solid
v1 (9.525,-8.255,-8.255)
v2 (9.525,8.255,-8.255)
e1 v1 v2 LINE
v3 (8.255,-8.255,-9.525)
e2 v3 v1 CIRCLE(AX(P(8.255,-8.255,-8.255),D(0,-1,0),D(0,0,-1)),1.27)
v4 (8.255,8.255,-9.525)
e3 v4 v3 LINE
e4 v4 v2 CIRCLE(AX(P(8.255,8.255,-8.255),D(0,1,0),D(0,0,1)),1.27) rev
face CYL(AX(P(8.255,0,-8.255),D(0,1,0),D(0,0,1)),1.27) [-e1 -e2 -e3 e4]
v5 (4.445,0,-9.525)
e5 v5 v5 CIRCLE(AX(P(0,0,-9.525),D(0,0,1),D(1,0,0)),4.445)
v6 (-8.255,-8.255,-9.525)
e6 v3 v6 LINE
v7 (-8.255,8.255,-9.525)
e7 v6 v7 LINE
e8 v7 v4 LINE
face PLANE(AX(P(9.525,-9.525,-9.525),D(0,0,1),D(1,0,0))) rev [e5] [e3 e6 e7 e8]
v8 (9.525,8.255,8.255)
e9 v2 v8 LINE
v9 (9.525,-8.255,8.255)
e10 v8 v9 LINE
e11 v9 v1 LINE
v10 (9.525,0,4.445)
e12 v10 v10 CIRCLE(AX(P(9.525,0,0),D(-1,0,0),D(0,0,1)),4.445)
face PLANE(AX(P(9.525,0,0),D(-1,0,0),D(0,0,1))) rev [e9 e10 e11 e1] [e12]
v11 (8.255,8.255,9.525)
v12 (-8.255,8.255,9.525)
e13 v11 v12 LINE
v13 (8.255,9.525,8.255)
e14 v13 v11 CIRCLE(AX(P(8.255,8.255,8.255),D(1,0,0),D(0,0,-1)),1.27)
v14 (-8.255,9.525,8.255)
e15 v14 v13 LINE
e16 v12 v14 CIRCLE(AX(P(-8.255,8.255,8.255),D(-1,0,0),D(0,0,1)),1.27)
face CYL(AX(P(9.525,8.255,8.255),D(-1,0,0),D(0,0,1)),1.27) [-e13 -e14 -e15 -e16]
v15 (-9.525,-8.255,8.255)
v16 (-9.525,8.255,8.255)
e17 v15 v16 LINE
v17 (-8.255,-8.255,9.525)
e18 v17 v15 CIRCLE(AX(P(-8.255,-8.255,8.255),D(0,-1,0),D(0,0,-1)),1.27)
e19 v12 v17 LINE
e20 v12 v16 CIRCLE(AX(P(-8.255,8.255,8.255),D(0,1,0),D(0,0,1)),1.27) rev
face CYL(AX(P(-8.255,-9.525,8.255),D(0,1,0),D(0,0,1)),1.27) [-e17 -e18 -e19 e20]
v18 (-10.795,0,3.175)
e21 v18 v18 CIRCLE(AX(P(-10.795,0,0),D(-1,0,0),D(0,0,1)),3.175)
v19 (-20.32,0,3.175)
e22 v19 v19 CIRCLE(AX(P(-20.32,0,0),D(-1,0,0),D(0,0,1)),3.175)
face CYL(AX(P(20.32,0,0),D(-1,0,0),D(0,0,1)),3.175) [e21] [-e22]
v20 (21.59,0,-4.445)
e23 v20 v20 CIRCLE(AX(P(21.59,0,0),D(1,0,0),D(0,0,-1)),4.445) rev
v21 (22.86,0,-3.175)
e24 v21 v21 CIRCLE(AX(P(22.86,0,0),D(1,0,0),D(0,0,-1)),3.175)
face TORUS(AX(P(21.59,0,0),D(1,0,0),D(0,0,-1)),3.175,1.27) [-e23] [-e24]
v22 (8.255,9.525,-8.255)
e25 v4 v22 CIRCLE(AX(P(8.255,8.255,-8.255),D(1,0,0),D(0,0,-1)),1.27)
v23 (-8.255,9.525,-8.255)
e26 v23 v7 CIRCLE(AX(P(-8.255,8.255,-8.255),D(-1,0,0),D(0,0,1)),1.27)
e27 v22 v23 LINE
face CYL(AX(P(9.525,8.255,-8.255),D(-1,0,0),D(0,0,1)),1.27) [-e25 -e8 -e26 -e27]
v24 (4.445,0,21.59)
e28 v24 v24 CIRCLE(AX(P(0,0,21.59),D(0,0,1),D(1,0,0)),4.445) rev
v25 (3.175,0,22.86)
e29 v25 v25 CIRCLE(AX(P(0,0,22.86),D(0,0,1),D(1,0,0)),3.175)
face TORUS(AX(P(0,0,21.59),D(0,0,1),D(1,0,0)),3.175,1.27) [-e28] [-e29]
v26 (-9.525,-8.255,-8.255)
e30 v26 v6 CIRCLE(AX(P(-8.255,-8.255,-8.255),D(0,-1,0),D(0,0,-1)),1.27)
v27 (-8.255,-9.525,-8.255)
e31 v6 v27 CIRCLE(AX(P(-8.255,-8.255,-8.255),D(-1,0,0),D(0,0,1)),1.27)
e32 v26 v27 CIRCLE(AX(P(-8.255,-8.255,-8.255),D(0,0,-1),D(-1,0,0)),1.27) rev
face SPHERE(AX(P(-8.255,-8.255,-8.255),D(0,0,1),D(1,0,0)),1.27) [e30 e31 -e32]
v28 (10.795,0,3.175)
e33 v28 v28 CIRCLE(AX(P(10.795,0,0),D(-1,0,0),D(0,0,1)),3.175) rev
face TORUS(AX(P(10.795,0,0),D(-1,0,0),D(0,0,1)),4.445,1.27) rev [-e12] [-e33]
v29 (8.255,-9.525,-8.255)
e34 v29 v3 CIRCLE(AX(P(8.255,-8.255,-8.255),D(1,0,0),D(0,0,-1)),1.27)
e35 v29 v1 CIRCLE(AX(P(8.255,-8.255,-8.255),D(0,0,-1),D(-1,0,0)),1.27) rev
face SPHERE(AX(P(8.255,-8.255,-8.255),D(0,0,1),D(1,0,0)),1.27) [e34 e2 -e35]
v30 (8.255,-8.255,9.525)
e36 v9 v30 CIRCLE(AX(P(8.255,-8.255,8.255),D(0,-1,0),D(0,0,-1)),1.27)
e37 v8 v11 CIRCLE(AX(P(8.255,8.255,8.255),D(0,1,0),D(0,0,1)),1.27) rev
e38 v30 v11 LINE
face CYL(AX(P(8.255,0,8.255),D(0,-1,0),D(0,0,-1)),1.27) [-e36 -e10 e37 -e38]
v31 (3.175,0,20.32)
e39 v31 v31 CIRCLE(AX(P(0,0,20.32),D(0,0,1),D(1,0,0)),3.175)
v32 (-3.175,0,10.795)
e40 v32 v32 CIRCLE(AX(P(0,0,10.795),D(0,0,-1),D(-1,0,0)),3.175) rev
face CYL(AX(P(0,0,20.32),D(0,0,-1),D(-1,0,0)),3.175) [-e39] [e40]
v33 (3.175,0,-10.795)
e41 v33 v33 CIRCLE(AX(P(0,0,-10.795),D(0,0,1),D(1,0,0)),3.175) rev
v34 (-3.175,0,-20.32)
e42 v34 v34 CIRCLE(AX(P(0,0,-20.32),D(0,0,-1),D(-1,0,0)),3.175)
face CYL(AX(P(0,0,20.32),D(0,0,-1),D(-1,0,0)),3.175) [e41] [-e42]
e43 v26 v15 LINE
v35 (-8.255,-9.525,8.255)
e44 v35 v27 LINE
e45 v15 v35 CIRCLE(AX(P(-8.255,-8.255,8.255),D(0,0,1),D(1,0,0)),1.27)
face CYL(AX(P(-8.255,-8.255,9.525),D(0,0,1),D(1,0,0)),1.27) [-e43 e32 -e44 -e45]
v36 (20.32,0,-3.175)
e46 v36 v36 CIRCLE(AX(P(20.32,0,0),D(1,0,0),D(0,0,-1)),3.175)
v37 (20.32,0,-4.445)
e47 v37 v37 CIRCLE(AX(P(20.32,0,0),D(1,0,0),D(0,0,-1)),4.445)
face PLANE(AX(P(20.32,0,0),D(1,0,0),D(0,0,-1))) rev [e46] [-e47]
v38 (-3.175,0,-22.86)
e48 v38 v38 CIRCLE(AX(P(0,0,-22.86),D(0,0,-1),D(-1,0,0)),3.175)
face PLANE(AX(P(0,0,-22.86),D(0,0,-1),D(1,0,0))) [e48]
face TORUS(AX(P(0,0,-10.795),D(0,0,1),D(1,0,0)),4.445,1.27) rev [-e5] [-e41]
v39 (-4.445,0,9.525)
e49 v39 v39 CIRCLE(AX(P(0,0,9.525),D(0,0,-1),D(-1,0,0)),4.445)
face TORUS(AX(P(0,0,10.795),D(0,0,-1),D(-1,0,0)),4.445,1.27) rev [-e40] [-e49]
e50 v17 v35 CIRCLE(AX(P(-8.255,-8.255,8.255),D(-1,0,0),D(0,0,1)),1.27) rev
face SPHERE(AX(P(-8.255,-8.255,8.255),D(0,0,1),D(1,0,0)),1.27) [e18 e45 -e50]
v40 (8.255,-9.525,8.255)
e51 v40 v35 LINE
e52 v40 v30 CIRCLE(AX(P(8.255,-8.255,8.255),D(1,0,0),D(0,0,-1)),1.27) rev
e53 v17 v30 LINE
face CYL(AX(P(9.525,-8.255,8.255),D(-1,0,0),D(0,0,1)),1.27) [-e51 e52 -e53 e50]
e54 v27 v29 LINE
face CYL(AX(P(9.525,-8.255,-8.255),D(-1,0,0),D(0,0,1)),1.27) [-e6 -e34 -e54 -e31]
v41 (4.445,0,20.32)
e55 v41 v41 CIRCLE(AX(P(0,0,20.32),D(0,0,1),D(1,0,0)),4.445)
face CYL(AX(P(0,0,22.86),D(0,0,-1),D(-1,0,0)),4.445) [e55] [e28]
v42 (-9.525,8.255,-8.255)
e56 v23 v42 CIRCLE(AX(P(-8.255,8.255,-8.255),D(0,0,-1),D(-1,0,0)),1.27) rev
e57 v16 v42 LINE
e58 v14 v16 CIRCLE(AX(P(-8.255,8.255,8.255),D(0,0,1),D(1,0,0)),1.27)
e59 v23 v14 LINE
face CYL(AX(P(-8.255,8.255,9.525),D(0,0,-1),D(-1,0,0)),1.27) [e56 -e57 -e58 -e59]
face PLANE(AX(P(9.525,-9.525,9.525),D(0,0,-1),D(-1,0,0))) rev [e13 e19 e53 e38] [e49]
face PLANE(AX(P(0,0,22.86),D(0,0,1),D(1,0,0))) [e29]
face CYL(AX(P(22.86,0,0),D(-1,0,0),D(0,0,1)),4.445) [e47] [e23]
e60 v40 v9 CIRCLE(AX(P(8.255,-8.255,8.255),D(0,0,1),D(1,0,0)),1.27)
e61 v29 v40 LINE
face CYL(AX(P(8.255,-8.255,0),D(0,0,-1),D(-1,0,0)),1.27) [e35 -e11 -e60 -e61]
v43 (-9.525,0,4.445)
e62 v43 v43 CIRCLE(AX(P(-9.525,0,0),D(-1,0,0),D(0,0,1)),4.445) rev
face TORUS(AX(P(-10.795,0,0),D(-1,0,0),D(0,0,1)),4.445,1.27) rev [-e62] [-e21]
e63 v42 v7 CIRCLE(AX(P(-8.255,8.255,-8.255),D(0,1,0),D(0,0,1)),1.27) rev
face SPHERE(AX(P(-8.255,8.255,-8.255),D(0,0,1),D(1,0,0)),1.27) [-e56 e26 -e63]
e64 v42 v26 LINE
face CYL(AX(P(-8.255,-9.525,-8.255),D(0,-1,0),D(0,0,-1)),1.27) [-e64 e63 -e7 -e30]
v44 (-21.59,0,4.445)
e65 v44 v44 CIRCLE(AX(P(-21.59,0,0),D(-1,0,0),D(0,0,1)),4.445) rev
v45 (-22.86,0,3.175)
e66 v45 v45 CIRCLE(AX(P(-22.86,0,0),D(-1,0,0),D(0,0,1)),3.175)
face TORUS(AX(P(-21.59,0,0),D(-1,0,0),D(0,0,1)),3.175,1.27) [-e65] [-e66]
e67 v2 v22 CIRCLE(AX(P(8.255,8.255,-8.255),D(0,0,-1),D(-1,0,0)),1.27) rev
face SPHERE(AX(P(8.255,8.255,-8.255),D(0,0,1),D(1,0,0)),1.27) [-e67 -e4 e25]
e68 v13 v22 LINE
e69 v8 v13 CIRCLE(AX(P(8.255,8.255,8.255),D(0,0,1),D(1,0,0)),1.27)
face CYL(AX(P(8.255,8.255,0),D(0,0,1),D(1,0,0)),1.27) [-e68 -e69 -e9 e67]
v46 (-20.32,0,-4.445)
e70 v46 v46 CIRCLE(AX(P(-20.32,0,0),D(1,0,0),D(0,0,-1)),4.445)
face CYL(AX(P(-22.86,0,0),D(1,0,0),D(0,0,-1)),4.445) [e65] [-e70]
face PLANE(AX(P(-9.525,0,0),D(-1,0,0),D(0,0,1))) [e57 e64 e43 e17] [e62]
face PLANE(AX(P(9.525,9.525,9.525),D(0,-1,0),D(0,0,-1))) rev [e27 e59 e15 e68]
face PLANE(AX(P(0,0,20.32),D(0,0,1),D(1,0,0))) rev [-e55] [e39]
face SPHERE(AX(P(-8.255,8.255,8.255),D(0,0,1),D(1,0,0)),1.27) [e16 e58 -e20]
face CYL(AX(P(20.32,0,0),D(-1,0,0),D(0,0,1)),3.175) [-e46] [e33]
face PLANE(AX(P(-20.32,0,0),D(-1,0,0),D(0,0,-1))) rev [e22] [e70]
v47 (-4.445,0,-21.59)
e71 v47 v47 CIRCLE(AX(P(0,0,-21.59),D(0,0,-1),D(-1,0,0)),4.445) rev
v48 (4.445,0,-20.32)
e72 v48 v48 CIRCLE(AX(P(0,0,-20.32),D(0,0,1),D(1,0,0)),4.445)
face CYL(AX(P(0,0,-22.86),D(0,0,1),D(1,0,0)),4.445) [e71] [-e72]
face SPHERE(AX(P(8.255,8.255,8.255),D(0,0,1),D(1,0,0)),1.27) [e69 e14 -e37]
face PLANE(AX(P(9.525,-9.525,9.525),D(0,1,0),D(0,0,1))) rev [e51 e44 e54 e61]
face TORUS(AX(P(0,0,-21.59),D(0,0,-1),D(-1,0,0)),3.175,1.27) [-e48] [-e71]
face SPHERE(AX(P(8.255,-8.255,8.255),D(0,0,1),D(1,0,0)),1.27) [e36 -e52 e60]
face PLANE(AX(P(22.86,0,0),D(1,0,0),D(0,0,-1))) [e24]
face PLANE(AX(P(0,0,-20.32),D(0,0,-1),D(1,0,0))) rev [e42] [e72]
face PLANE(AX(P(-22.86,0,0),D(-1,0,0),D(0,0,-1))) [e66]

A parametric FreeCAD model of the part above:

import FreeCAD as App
import Part
import Sketcher
Q = App.Units.Quantity


def edges_at(feature, points):
    """Names of the edges that pass closest to the given points."""
    edges = feature.Shape.Edges
    near = lambda p: min(range(len(edges)), key=lambda i: edges[i].distToShape(Part.Vertex(*p))[0])
    return sorted({f"Edge{near(p) + 1}" for p in points})


def add_polygon(sketch, points):
    """Adds a closed chain of lines whose ends are joined by coincident constraints."""
    first, n = sketch.GeometryCount, len(points)
    for a, b in zip(points, points[1:] + points[:1]):
        sketch.addGeometry(Part.LineSegment(App.Vector(*a, 0), App.Vector(*b, 0)), False)
    for i in range(n):
        sketch.addConstraint(Sketcher.Constraint("Coincident", first + i, 2, first + (i + 1) % n, 1))

doc = App.newDocument("Part")
params = doc.addObject("Spreadsheet::Sheet", "Params")
for row, (alias, value) in enumerate([
    ("sketch1_diameter", "0.25 in"),
    ("pad1_length", "1.6 in"),
    ("sketch2_diameter", "0.35 in"),
    ("pad2_length", "0.1 in"),
    ("fillet_radius", "0.05 in"),
    ("fillet2_radius", "0.05 in"),
    ("sketch3_diameter", "0.25 in"),
    ("pad3_length", "1.6 in"),
    ("sketch4_diameter", "0.35 in"),
    ("pad4_length", "0.1 in"),
    ("fillet3_radius", "0.05 in"),
    ("fillet4_radius", "0.05 in"),
    ("sketch5_width", "0.75 in"),
    ("pad5_length", "0.75 in"),
    ("fillet5_radius", "0.05 in"),
], start=1):
    params.set(f"A{row}", alias)
    params.set(f"B{row}", "=" + value)
    params.setAlias(f"B{row}", alias)

body = doc.addObject("PartDesign::Body", "Body")

# Sketch on XY plane
sketch1 = body.newObject("Sketcher::SketchObject", "Sketch")
sketch1.AttachmentSupport = (doc.getObject("XY_Plane"), [""])
sketch1.MapMode = "FlatFace"
sketch1.addGeometry(Part.Circle(App.Vector(0, 0, 0), App.Vector(0, 0, 1), 3.2), False)
sketch1.addConstraint([
    Sketcher.Constraint("Coincident", 0, 3, -1, 1),
    Sketcher.Constraint("Diameter", 0, Q("0.25 in")),
])
sketch1.setExpression("Constraints[1]", "Params.sketch1_diameter")
pad1 = body.newObject("PartDesign::Pad", "Pad")
pad1.Profile = sketch1
pad1.setExpression("Length", "Params.pad1_length")
pad1.Midplane = True

# Sketch on XY plane
sketch2 = body.newObject("Sketcher::SketchObject", "Sketch001")
sketch2.AttachmentSupport = (doc.getObject("XY_Plane"), [""])
sketch2.MapMode = "FlatFace"
sketch2.AttachmentOffset = App.Placement(App.Vector(0, 0, 0.8 * 25.4), App.Rotation())
sketch2.addGeometry(Part.Circle(App.Vector(0, 0, 0), App.Vector(0, 0, 1), 4.4), False)
sketch2.addConstraint([
    Sketcher.Constraint("Coincident", 0, 3, -1, 1),
    Sketcher.Constraint("Diameter", 0, Q("0.35 in")),
])
sketch2.setExpression("Constraints[1]", "Params.sketch2_diameter")
pad2 = body.newObject("PartDesign::Pad", "Pad001")
pad2.Profile = sketch2
pad2.setExpression("Length", "Params.pad2_length")
doc.recompute()

fillet = body.newObject("PartDesign::Fillet", "Fillet")
fillet.Base = (pad2, edges_at(pad2, [(-4.445, 0, 22.86)]))
fillet.setExpression("Radius", "Params.fillet_radius")
doc.recompute()

mirrored = body.newObject("PartDesign::Mirrored", "Mirrored")
mirrored.Originals = [pad2]
mirrored.MirrorPlane = (doc.getObject("XY_Plane"), [""])
body.Tip = mirrored
doc.recompute()

fillet2 = body.newObject("PartDesign::Fillet", "Fillet001")
fillet2.Base = (mirrored, edges_at(mirrored, [(-4.445, 0, -22.86)]))
fillet2.setExpression("Radius", "Params.fillet2_radius")

# Sketch on YZ plane
sketch3 = body.newObject("Sketcher::SketchObject", "Sketch002")
sketch3.AttachmentSupport = (doc.getObject("YZ_Plane"), [""])
sketch3.MapMode = "FlatFace"
sketch3.addGeometry(Part.Circle(App.Vector(0, 0, 0), App.Vector(0, 0, 1), 3.2), False)
sketch3.addConstraint([
    Sketcher.Constraint("Coincident", 0, 3, -1, 1),
    Sketcher.Constraint("Diameter", 0, Q("0.25 in")),
])
sketch3.setExpression("Constraints[1]", "Params.sketch3_diameter")
pad3 = body.newObject("PartDesign::Pad", "Pad002")
pad3.Profile = sketch3
pad3.setExpression("Length", "Params.pad3_length")
pad3.Midplane = True

# Sketch on YZ plane
sketch4 = body.newObject("Sketcher::SketchObject", "Sketch003")
sketch4.AttachmentSupport = (doc.getObject("YZ_Plane"), [""])
sketch4.MapMode = "FlatFace"
sketch4.AttachmentOffset = App.Placement(App.Vector(0, 0, 0.8 * 25.4), App.Rotation())
sketch4.addGeometry(Part.Circle(App.Vector(0, 0, 0), App.Vector(0, 0, 1), 4.4), False)
sketch4.addConstraint([
    Sketcher.Constraint("Coincident", 0, 3, -1, 1),
    Sketcher.Constraint("Diameter", 0, Q("0.35 in")),
])
sketch4.setExpression("Constraints[1]", "Params.sketch4_diameter")
pad4 = body.newObject("PartDesign::Pad", "Pad003")
pad4.Profile = sketch4
pad4.setExpression("Length", "Params.pad4_length")
doc.recompute()

fillet3 = body.newObject("PartDesign::Fillet", "Fillet002")
fillet3.Base = (pad4, edges_at(pad4, [(22.86, 0, 4.445)]))
fillet3.setExpression("Radius", "Params.fillet3_radius")
doc.recompute()

mirrored2 = body.newObject("PartDesign::Mirrored", "Mirrored001")
mirrored2.Originals = [pad4]
mirrored2.MirrorPlane = (doc.getObject("YZ_Plane"), [""])
body.Tip = mirrored2
doc.recompute()

fillet4 = body.newObject("PartDesign::Fillet", "Fillet003")
fillet4.Base = (mirrored2, edges_at(mirrored2, [(-22.86, 0, 4.445)]))
fillet4.setExpression("Radius", "Params.fillet4_radius")

# Sketch on YZ plane
sketch5 = body.newObject("Sketcher::SketchObject", "Sketch004")
sketch5.AttachmentSupport = (doc.getObject("YZ_Plane"), [""])
sketch5.MapMode = "FlatFace"
add_polygon(sketch5, [(10, 10), (-10, 10), (-10, -10), (10, -10)])  # lines 0-3
sketch5.addConstraint([
    Sketcher.Constraint("Horizontal", 0),
    Sketcher.Constraint("Vertical", 1),
    Sketcher.Constraint("Horizontal", 2),
    Sketcher.Constraint("Vertical", 3),
    Sketcher.Constraint("Symmetric", 0, 2, 2, 2, -1, 1),
    Sketcher.Constraint("Equal", 2, 1),
    Sketcher.Constraint("DistanceX", 0, 2, 0, 1, Q("0.75 in")),
])
sketch5.setExpression("Constraints[10]", "Params.sketch5_width")
pad5 = body.newObject("PartDesign::Pad", "Pad004")
pad5.Profile = sketch5
pad5.setExpression("Length", "Params.pad5_length")
pad5.Midplane = True
doc.recompute()

fillet5 = body.newObject("PartDesign::Fillet", "Fillet004")
fillet5.Base = (pad5, edges_at(pad5, [
    (9.525, 0, 3.175),
    (-3.175, 0, -9.525),
    (-3.175, 0, 9.525),
    (-9.525, 0, 9.525),
    (0, 9.525, 9.525),
    (-9.525, 0, -9.525),
    (0, -9.525, -9.525),
    (9.525, 0, -9.525),
    (9.525, 9.525, 0),
    (9.525, 0, 9.525),
    (9.525, -9.525, 0),
    (-9.525, 9.525, 0),
    (0, 9.525, -9.525),
    (-9.525, -9.525, 0),
    (0, -9.525, 9.525),
    (-9.525, 0, 3.175),
]))
fillet5.setExpression("Radius", "Params.fillet5_radius")

doc.recompute()
